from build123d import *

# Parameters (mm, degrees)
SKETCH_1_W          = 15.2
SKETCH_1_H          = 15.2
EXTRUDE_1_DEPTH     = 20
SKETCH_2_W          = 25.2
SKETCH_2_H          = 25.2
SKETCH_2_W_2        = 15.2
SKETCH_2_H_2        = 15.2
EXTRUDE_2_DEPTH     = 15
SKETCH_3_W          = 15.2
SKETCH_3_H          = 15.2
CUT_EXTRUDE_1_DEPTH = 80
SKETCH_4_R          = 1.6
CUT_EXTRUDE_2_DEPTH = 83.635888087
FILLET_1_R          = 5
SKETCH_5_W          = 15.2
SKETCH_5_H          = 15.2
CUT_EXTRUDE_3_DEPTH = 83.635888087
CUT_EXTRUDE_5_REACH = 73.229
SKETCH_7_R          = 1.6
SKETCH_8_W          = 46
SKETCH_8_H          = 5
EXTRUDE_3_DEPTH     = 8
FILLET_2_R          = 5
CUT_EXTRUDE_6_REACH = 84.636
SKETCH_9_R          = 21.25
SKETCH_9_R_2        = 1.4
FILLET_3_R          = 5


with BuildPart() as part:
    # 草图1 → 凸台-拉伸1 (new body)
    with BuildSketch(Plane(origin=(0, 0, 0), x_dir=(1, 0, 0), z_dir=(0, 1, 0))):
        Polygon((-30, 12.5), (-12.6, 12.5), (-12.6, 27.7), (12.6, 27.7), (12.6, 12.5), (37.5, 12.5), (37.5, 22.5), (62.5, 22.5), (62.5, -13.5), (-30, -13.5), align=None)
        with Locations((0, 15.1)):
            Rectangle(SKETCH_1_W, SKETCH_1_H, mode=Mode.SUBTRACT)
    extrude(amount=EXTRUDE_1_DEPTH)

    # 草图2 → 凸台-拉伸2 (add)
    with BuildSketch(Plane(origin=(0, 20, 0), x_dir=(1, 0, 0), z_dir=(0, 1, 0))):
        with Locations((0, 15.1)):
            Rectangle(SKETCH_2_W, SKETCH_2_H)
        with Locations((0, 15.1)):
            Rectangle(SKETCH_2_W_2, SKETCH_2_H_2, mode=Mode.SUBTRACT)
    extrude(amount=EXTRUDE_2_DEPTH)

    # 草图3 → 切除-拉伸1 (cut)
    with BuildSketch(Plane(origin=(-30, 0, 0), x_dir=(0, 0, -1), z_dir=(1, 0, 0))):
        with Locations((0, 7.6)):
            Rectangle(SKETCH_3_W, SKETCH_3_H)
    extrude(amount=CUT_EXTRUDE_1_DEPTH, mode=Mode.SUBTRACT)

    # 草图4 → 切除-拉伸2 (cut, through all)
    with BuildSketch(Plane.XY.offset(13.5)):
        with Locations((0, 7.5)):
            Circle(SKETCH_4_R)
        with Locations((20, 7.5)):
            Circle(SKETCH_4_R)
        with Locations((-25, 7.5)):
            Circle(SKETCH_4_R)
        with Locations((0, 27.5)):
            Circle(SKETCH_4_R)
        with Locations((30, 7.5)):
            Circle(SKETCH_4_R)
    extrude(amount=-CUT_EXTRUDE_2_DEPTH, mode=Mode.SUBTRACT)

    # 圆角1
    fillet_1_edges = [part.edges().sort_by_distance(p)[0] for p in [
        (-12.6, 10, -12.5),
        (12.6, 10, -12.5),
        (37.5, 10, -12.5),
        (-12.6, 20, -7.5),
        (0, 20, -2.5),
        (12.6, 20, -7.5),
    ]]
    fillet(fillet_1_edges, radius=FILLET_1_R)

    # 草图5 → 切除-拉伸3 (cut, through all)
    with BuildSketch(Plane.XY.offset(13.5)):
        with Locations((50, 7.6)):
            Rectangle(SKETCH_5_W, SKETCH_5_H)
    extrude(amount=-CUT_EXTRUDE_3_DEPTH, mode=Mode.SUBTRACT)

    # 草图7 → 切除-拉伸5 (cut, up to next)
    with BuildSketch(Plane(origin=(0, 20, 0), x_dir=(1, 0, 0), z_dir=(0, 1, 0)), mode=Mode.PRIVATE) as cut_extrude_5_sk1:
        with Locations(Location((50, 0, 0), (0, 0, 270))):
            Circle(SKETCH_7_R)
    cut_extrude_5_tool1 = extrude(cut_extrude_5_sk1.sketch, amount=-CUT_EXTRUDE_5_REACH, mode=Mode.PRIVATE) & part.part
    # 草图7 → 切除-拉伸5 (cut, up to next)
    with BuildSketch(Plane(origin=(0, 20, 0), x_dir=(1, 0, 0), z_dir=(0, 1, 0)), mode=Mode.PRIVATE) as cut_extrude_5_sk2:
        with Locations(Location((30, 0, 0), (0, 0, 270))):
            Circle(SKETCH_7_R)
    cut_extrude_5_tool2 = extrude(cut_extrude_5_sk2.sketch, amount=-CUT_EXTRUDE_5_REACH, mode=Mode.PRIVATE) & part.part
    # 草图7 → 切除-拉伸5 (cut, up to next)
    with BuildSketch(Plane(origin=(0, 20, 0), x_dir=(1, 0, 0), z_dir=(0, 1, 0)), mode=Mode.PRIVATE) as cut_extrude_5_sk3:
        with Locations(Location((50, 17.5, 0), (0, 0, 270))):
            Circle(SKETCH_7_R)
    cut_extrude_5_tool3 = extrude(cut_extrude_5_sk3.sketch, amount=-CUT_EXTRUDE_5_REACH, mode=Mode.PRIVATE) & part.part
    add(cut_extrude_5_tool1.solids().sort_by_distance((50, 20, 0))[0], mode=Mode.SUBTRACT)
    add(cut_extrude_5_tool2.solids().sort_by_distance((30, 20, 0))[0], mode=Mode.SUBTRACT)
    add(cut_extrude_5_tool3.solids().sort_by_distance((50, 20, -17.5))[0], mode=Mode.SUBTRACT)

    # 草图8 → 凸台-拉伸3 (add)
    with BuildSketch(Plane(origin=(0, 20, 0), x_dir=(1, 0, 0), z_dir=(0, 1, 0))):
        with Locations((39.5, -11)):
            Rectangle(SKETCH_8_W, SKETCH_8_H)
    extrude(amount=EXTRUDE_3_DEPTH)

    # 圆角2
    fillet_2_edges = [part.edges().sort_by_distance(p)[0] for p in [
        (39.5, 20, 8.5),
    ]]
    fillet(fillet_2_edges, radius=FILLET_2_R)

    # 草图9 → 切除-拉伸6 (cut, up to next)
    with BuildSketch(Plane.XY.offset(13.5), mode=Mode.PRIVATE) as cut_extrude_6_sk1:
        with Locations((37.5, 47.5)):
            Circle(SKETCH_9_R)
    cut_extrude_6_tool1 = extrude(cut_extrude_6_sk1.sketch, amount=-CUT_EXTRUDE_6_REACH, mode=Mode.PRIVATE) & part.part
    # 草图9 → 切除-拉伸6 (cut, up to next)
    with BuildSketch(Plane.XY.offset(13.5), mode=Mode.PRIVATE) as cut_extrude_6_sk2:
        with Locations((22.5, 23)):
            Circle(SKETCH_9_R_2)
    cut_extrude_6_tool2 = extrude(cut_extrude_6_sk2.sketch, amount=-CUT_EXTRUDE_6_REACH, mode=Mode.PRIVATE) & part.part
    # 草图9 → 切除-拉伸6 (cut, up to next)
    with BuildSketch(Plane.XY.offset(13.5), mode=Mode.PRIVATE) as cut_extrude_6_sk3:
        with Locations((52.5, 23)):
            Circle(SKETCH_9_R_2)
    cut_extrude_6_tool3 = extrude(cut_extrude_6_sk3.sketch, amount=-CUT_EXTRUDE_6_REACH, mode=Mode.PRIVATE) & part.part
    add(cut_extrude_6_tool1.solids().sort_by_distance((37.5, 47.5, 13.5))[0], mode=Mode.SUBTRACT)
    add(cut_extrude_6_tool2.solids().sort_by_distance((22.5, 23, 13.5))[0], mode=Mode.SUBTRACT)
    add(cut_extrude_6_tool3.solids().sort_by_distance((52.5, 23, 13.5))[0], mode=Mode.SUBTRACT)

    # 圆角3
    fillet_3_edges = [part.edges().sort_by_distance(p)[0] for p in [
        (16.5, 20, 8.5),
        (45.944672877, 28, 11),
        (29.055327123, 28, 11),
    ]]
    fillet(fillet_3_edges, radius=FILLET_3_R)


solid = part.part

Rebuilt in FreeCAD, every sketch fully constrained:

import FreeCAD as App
import Part
import Sketcher


def edges_at(feature, points):
    """Names of the edges that pass closest to the given points."""
    edges = feature.Shape.Edges
    near = lambda p: min(range(len(edges)), key=lambda i: edges[i].distToShape(Part.Vertex(*p))[0])
    return sorted({f"Edge{near(p) + 1}" for p in points})

doc = App.newDocument("Part")
body = doc.addObject("PartDesign::Body", "Body")

# Sketch on XZ plane
sketch1 = body.newObject("Sketcher::SketchObject", "Sketch")
sketch1.AttachmentSupport = (doc.getObject("XZ_Plane"), [""])
sketch1.MapMode = "FlatFace"
sketch1.addGeometry([
    Part.LineSegment(App.Vector(-12.6, -12.5, 0), App.Vector(-30, -12.5, 0)),  # 0
    Part.LineSegment(App.Vector(-30, -12.5, 0), App.Vector(-30, 13.5, 0)),  # 1
    Part.LineSegment(App.Vector(-30, 13.5, 0), App.Vector(62.5, 13.5, 0)),  # 2
    Part.LineSegment(App.Vector(62.5, 13.5, 0), App.Vector(62.5, -22.5, 0)),  # 3
    Part.LineSegment(App.Vector(62.5, -22.5, 0), App.Vector(37.5, -22.5, 0)),  # 4
    Part.LineSegment(App.Vector(37.5, -22.5, 0), App.Vector(37.5, -12.5, 0)),  # 5
    Part.LineSegment(App.Vector(37.5, -12.5, 0), App.Vector(12.6, -12.5, 0)),  # 6
    Part.LineSegment(App.Vector(12.6, -12.5, 0), App.Vector(12.6, -27.7, 0)),  # 7
    Part.LineSegment(App.Vector(12.6, -27.7, 0), App.Vector(-12.6, -27.7, 0)),  # 8
    Part.LineSegment(App.Vector(-12.6, -27.7, 0), App.Vector(-12.6, -12.5, 0)),  # 9
    Part.LineSegment(App.Vector(-7.6, -7.5, 0), App.Vector(-7.6, -22.7, 0)),  # 10
    Part.LineSegment(App.Vector(-7.6, -22.7, 0), App.Vector(7.6, -22.7, 0)),  # 11
    Part.LineSegment(App.Vector(7.6, -22.7, 0), App.Vector(7.6, -7.5, 0)),  # 12
    Part.LineSegment(App.Vector(7.6, -7.5, 0), App.Vector(-7.6, -7.5, 0)),  # 13
], False)
sketch1.addConstraint([
    Sketcher.Constraint("Coincident", 0, 2, 1, 1),
    Sketcher.Constraint("Coincident", 1, 2, 2, 1),
    Sketcher.Constraint("Coincident", 2, 2, 3, 1),
    Sketcher.Constraint("Coincident", 3, 2, 4, 1),
    Sketcher.Constraint("Coincident", 4, 2, 5, 1),
    Sketcher.Constraint("Coincident", 5, 2, 6, 1),
    Sketcher.Constraint("Coincident", 6, 2, 7, 1),
    Sketcher.Constraint("Coincident", 7, 2, 8, 1),
    Sketcher.Constraint("Coincident", 8, 2, 9, 1),
    Sketcher.Constraint("Coincident", 9, 2, 0, 1),
    Sketcher.Constraint("Coincident", 10, 2, 11, 1),
    Sketcher.Constraint("Coincident", 11, 2, 12, 1),
    Sketcher.Constraint("Coincident", 12, 2, 13, 1),
    Sketcher.Constraint("Coincident", 13, 2, 10, 1),
    Sketcher.Constraint("Horizontal", 0),
    Sketcher.Constraint("Vertical", 1),
    Sketcher.Constraint("Horizontal", 2),
    Sketcher.Constraint("Vertical", 3),
    Sketcher.Constraint("Horizontal", 4),
    Sketcher.Constraint("Vertical", 5),
    Sketcher.Constraint("Horizontal", 6),
    Sketcher.Constraint("Vertical", 7),
    Sketcher.Constraint("Horizontal", 8),
    Sketcher.Constraint("Vertical", 9),
    Sketcher.Constraint("Vertical", 10),
    Sketcher.Constraint("Horizontal", 11),
    Sketcher.Constraint("Vertical", 12),
    Sketcher.Constraint("Horizontal", 13),
    Sketcher.Constraint("Symmetric", 6, 2, 9, 2, -2),
    Sketcher.Constraint("Equal", 13, 7),
    Sketcher.Constraint("Equal", 9, 10),
    Sketcher.Constraint("DistanceX", 4, 2, 4, 1, 25.0),
    Sketcher.Constraint("DistanceY", 1, 1, 1, 2, 26.0),
    Sketcher.Constraint("DistanceY", 3, 2, 3, 1, 36.0),
    Sketcher.Constraint("DistanceX", 0, 2, 0, 1, 17.4),
    Sketcher.Constraint("DistanceX", 2, 1, 2, 2, 92.5),
    Sketcher.Constraint("DistanceX", 6, 2, 6, 1, 24.9),
    Sketcher.Constraint("DistanceX", 11, 1, 11, 2, 15.2),
    Sketcher.Constraint("DistanceX", 8, 2, 10, 2, 5.0),
    Sketcher.Constraint("DistanceY", 8, 2, 10, 2, 5.0),
    Sketcher.Constraint("DistanceY", 0, 2, -1, 1, 12.5),
])
pad1 = body.newObject("PartDesign::Pad", "Pad")
pad1.Profile = sketch1
pad1.Length = 20
pad1.Reversed = True

# Sketch on XZ plane
sketch2 = body.newObject("Sketcher::SketchObject", "Sketch001")
sketch2.AttachmentSupport = (doc.getObject("XZ_Plane"), [""])
sketch2.MapMode = "FlatFace"
sketch2.AttachmentOffset = App.Placement(App.Vector(0, 0, -20), App.Rotation())
sketch2.addGeometry([
    Part.LineSegment(App.Vector(-12.6, -27.7, 0), App.Vector(-12.6, -2.5, 0)),  # 0
    Part.LineSegment(App.Vector(-12.6, -2.5, 0), App.Vector(12.6, -2.5, 0)),  # 1
    Part.LineSegment(App.Vector(12.6, -2.5, 0), App.Vector(12.6, -27.7, 0)),  # 2
    Part.LineSegment(App.Vector(12.6, -27.7, 0), App.Vector(-12.6, -27.7, 0)),  # 3
    Part.LineSegment(App.Vector(7.6, -7.5, 0), App.Vector(-7.6, -7.5, 0)),  # 4
    Part.LineSegment(App.Vector(-7.6, -7.5, 0), App.Vector(-7.6, -22.7, 0)),  # 5
    Part.LineSegment(App.Vector(-7.6, -22.7, 0), App.Vector(7.6, -22.7, 0)),  # 6
    Part.LineSegment(App.Vector(7.6, -22.7, 0), App.Vector(7.6, -7.5, 0)),  # 7
], False)
sketch2.addConstraint([
    Sketcher.Constraint("Coincident", 0, 2, 1, 1),
    Sketcher.Constraint("Coincident", 1, 2, 2, 1),
    Sketcher.Constraint("Coincident", 2, 2, 3, 1),
    Sketcher.Constraint("Coincident", 3, 2, 0, 1),
    Sketcher.Constraint("Coincident", 4, 2, 5, 1),
    Sketcher.Constraint("Coincident", 5, 2, 6, 1),
    Sketcher.Constraint("Coincident", 6, 2, 7, 1),
    Sketcher.Constraint("Coincident", 7, 2, 4, 1),
    Sketcher.Constraint("Vertical", 0),
    Sketcher.Constraint("Horizontal", 1),
    Sketcher.Constraint("Vertical", 2),
    Sketcher.Constraint("Horizontal", 3),
    Sketcher.Constraint("Horizontal", 4),
    Sketcher.Constraint("Vertical", 5),
    Sketcher.Constraint("Horizontal", 6),
    Sketcher.Constraint("Vertical", 7),
    Sketcher.Constraint("Equal", 3, 0),
    Sketcher.Constraint("Equal", 6, 5),
    Sketcher.Constraint("DistanceX", 1, 1, 1, 2, 25.2),
    Sketcher.Constraint("DistanceX", 4, 2, 4, 1, 15.2),
    Sketcher.Constraint("DistanceX", 0, 2, 4, 2, 5.0),
    Sketcher.Constraint("DistanceY", 4, 2, 0, 2, 5.0),
    Sketcher.Constraint("DistanceX", 0, 2, -1, 1, 12.6),
    Sketcher.Constraint("DistanceY", 0, 2, -1, 1, 2.5),
])
pad2 = body.newObject("PartDesign::Pad", "Pad001")
pad2.Profile = sketch2
pad2.Length = 15
pad2.Reversed = True

# Sketch on YZ plane
sketch3 = body.newObject("Sketcher::SketchObject", "Sketch002")
sketch3.AttachmentSupport = (doc.getObject("YZ_Plane"), [""])
sketch3.MapMode = "FlatFace"
sketch3.AttachmentOffset = App.Placement(App.Vector(0, 0, -30), App.Rotation())
sketch3.addGeometry([
    Part.LineSegment(App.Vector(15.2, 7.6, 0), App.Vector(0, 7.6, 0)),
    Part.LineSegment(App.Vector(0, 7.6, 0), App.Vector(0, -7.6, 0)),
    Part.LineSegment(App.Vector(0, -7.6, 0), App.Vector(15.2, -7.6, 0)),
    Part.LineSegment(App.Vector(15.2, -7.6, 0), App.Vector(15.2, 7.6, 0)),
], False)
sketch3.addConstraint([
    Sketcher.Constraint("Coincident", 0, 2, 1, 1),
    Sketcher.Constraint("Coincident", 1, 2, 2, 1),
    Sketcher.Constraint("Coincident", 2, 2, 3, 1),
    Sketcher.Constraint("Coincident", 3, 2, 0, 1),
    Sketcher.Constraint("Horizontal", 0),
    Sketcher.Constraint("Vertical", 1),
    Sketcher.Constraint("Horizontal", 2),
    Sketcher.Constraint("Vertical", 3),
    Sketcher.Constraint("Symmetric", 0, 2, 1, 2, -1, 1),
    Sketcher.Constraint("Equal", 2, 1),
    Sketcher.Constraint("DistanceX", 0, 2, 0, 1, 15.2),
])
pocket1 = body.newObject("PartDesign::Pocket", "Pocket")
pocket1.Profile = sketch3
pocket1.Length = 80
pocket1.Reversed = True

# Sketch on XY plane
sketch4 = body.newObject("Sketcher::SketchObject", "Sketch003")
sketch4.AttachmentSupport = (doc.getObject("XY_Plane"), [""])
sketch4.MapMode = "FlatFace"
sketch4.AttachmentOffset = App.Placement(App.Vector(0, 0, 13.5), App.Rotation())
sketch4.addGeometry([
    Part.Circle(App.Vector(0, 7.5, 0), App.Vector(0, 0, 1), 1.6),  # 0
    Part.Circle(App.Vector(20, 7.5, 0), App.Vector(0, 0, 1), 1.6),  # 1
    Part.Circle(App.Vector(-25, 7.5, 0), App.Vector(0, 0, 1), 1.6),  # 2
    Part.Circle(App.Vector(0, 27.5, 0), App.Vector(0, 0, 1), 1.6),  # 3
    Part.Circle(App.Vector(30, 7.5, 0), App.Vector(0, 0, 1), 1.6),  # 4
], False)
sketch4.addConstraint([
    Sketcher.Constraint("Equal", 0, 1),
    Sketcher.Constraint("Equal", 1, 2),
    Sketcher.Constraint("Equal", 2, 3),
    Sketcher.Constraint("Equal", 3, 4),
    Sketcher.Constraint("PointOnObject", 0, 3, -2),
    Sketcher.Constraint("PointOnObject", 3, 3, -2),
    Sketcher.Constraint("Horizontal", 0, 3, 1, 3),
    Sketcher.Constraint("Horizontal", 1, 3, 2, 3),
    Sketcher.Constraint("Horizontal", 2, 3, 4, 3),
    Sketcher.Constraint("Diameter", 0, 3.2),
    Sketcher.Constraint("DistanceX", -1, 1, 1, 3, 20.0),
    Sketcher.Constraint("DistanceX", 2, 3, -1, 1, 25.0),
    Sketcher.Constraint("DistanceX", -1, 1, 4, 3, 30.0),
    Sketcher.Constraint("DistanceY", 0, 3, 3, 3, 20.0),
    Sketcher.Constraint("DistanceY", -1, 1, 0, 3, 7.5),
])
pocket2 = body.newObject("PartDesign::Pocket", "Pocket001")
pocket2.Profile = sketch4
pocket2.Type = "ThroughAll"
doc.recompute()

fillet = body.newObject("PartDesign::Fillet", "Fillet")
fillet.Base = (pocket2, edges_at(pocket2, [
    (-12.6, 10, -12.5),
    (12.6, 10, -12.5),
    (37.5, 10, -12.5),
    (-12.6, 20, -7.5),
    (0, 20, -2.5),
    (12.6, 20, -7.5),
]))
fillet.Radius = 5

# Sketch on XY plane
sketch5 = body.newObject("Sketcher::SketchObject", "Sketch004")
sketch5.AttachmentSupport = (doc.getObject("XY_Plane"), [""])
sketch5.MapMode = "FlatFace"
sketch5.AttachmentOffset = App.Placement(App.Vector(0, 0, 13.5), App.Rotation())
sketch5.addGeometry([
    Part.LineSegment(App.Vector(42.4, 15.2, 0), App.Vector(42.4, 0, 0)),
    Part.LineSegment(App.Vector(42.4, 0, 0), App.Vector(57.6, 0, 0)),
    Part.LineSegment(App.Vector(57.6, 0, 0), App.Vector(57.6, 15.2, 0)),
    Part.LineSegment(App.Vector(57.6, 15.2, 0), App.Vector(42.4, 15.2, 0)),
], False)
sketch5.addConstraint([
    Sketcher.Constraint("Coincident", 0, 2, 1, 1),
    Sketcher.Constraint("Coincident", 1, 2, 2, 1),
    Sketcher.Constraint("Coincident", 2, 2, 3, 1),
    Sketcher.Constraint("Coincident", 3, 2, 0, 1),
    Sketcher.Constraint("Vertical", 0),
    Sketcher.Constraint("Horizontal", 1),
    Sketcher.Constraint("Vertical", 2),
    Sketcher.Constraint("Horizontal", 3),
    Sketcher.Constraint("PointOnObject", 0, 2, -1),
    Sketcher.Constraint("Equal", 3, 0),
    Sketcher.Constraint("DistanceX", 1, 1, 1, 2, 15.2),
    Sketcher.Constraint("DistanceX", -1, 1, 0, 2, 42.4),
])
pocket3 = body.newObject("PartDesign::Pocket", "Pocket002")
pocket3.Profile = sketch5
pocket3.Type = "ThroughAll"

# Sketch on XZ plane
sketch6 = body.newObject("Sketcher::SketchObject", "Sketch005")
sketch6.AttachmentSupport = (doc.getObject("XZ_Plane"), [""])
sketch6.MapMode = "FlatFace"
sketch6.AttachmentOffset = App.Placement(App.Vector(0, 0, -20), App.Rotation())
sketch6.addGeometry(Part.Circle(App.Vector(50, 0, 0), App.Vector(0, 0, 1), 1.6), False)
sketch6.addConstraint([
    Sketcher.Constraint("PointOnObject", 0, 3, -1),
    Sketcher.Constraint("Diameter", 0, 3.2),
    Sketcher.Constraint("DistanceX", -1, 1, 0, 3, 50.0),
])
pocket4 = body.newObject("PartDesign::Pocket", "Pocket003")
pocket4.Profile = sketch6
pocket4.Type = "UpToFirst"
pocket4.Reversed = True

# Sketch on XZ plane
sketch7 = body.newObject("Sketcher::SketchObject", "Sketch006")
sketch7.AttachmentSupport = (doc.getObject("XZ_Plane"), [""])
sketch7.MapMode = "FlatFace"
sketch7.AttachmentOffset = App.Placement(App.Vector(0, 0, -20), App.Rotation())
sketch7.addGeometry(Part.Circle(App.Vector(30, 0, 0), App.Vector(0, 0, 1), 1.6), False)
sketch7.addConstraint([
    Sketcher.Constraint("PointOnObject", 0, 3, -1),
    Sketcher.Constraint("Diameter", 0, 3.2),
    Sketcher.Constraint("DistanceX", -1, 1, 0, 3, 30.0),
])
pocket5 = body.newObject("PartDesign::Pocket", "Pocket004")
pocket5.Profile = sketch7
pocket5.Type = "UpToFirst"
pocket5.Reversed = True

# Sketch on XZ plane
sketch8 = body.newObject("Sketcher::SketchObject", "Sketch007")
sketch8.AttachmentSupport = (doc.getObject("XZ_Plane"), [""])
sketch8.MapMode = "FlatFace"
sketch8.AttachmentOffset = App.Placement(App.Vector(0, 0, -20), App.Rotation())
sketch8.addGeometry(Part.Circle(App.Vector(50, -17.5, 0), App.Vector(0, 0, 1), 1.6), False)
sketch8.addConstraint([
    Sketcher.Constraint("Diameter", 0, 3.2),
    Sketcher.Constraint("DistanceX", -1, 1, 0, 3, 50.0),
    Sketcher.Constraint("DistanceY", 0, 3, -1, 1, 17.5),
])
pocket6 = body.newObject("PartDesign::Pocket", "Pocket005")
pocket6.Profile = sketch8
pocket6.Type = "UpToFirst"
pocket6.Reversed = True

# Sketch on XZ plane
sketch9 = body.newObject("Sketcher::SketchObject", "Sketch008")
sketch9.AttachmentSupport = (doc.getObject("XZ_Plane"), [""])
sketch9.MapMode = "FlatFace"
sketch9.AttachmentOffset = App.Placement(App.Vector(0, 0, -20), App.Rotation())
sketch9.addGeometry([
    Part.LineSegment(App.Vector(16.5, 8.5, 0), App.Vector(16.5, 13.5, 0)),
    Part.LineSegment(App.Vector(16.5, 13.5, 0), App.Vector(62.5, 13.5, 0)),
    Part.LineSegment(App.Vector(62.5, 13.5, 0), App.Vector(62.5, 8.5, 0)),
    Part.LineSegment(App.Vector(62.5, 8.5, 0), App.Vector(16.5, 8.5, 0)),
], False)
sketch9.addConstraint([
    Sketcher.Constraint("Coincident", 0, 2, 1, 1),
    Sketcher.Constraint("Coincident", 1, 2, 2, 1),
    Sketcher.Constraint("Coincident", 2, 2, 3, 1),
    Sketcher.Constraint("Coincident", 3, 2, 0, 1),
    Sketcher.Constraint("Vertical", 0),
    Sketcher.Constraint("Horizontal", 1),
    Sketcher.Constraint("Vertical", 2),
    Sketcher.Constraint("Horizontal", 3),
    Sketcher.Constraint("DistanceX", 1, 1, 1, 2, 46.0),
    Sketcher.Constraint("DistanceY", 0, 1, 0, 2, 5.0),
    Sketcher.Constraint("DistanceX", -1, 1, 0, 2, 16.5),
    Sketcher.Constraint("DistanceY", -1, 1, 0, 2, 13.5),
])
pad3 = body.newObject("PartDesign::Pad", "Pad002")
pad3.Profile = sketch9
pad3.Length = 8
pad3.Reversed = True
doc.recompute()

fillet2 = body.newObject("PartDesign::Fillet", "Fillet001")
fillet2.Base = (pad3, edges_at(pad3, [(39.5, 20, 8.5)]))
fillet2.Radius = 5

# Sketch on XY plane
sketch10 = body.newObject("Sketcher::SketchObject", "Sketch009")
sketch10.AttachmentSupport = (doc.getObject("XY_Plane"), [""])
sketch10.MapMode = "FlatFace"
sketch10.AttachmentOffset = App.Placement(App.Vector(0, 0, 13.5), App.Rotation())
sketch10.addGeometry(Part.Circle(App.Vector(37.5, 47.5, 0), App.Vector(0, 0, 1), 21.25), False)
sketch10.addConstraint([
    Sketcher.Constraint("Diameter", 0, 42.5),
    Sketcher.Constraint("DistanceX", -1, 1, 0, 3, 37.5),
    Sketcher.Constraint("DistanceY", -1, 1, 0, 3, 47.5),
])
pocket7 = body.newObject("PartDesign::Pocket", "Pocket006")
pocket7.Profile = sketch10
pocket7.Length = 5

# Sketch on XY plane
sketch11 = body.newObject("Sketcher::SketchObject", "Sketch010")
sketch11.AttachmentSupport = (doc.getObject("XY_Plane"), [""])
sketch11.MapMode = "FlatFace"
sketch11.AttachmentOffset = App.Placement(App.Vector(0, 0, 13.5), App.Rotation())
sketch11.addGeometry(Part.Circle(App.Vector(22.5, 23, 0), App.Vector(0, 0, 1), 1.4), False)
sketch11.addConstraint([
    Sketcher.Constraint("Diameter", 0, 2.8),
    Sketcher.Constraint("DistanceY", -1, 1, 0, 3, 23.0),
    Sketcher.Constraint("DistanceX", -1, 1, 0, 3, 22.5),
])
pocket8 = body.newObject("PartDesign::Pocket", "Pocket007")
pocket8.Profile = sketch11
pocket8.Type = "UpToFirst"

# Sketch on XY plane
sketch12 = body.newObject("Sketcher::SketchObject", "Sketch011")
sketch12.AttachmentSupport = (doc.getObject("XY_Plane"), [""])
sketch12.MapMode = "FlatFace"
sketch12.AttachmentOffset = App.Placement(App.Vector(0, 0, 13.5), App.Rotation())
sketch12.addGeometry(Part.Circle(App.Vector(52.5, 23, 0), App.Vector(0, 0, 1), 1.4), False)
sketch12.addConstraint([
    Sketcher.Constraint("Diameter", 0, 2.8),
    Sketcher.Constraint("DistanceY", -1, 1, 0, 3, 23.0),
    Sketcher.Constraint("DistanceX", -1, 1, 0, 3, 52.5),
])
pocket9 = body.newObject("PartDesign::Pocket", "Pocket008")
pocket9.Profile = sketch12
pocket9.Type = "UpToFirst"
doc.recompute()

fillet3 = body.newObject("PartDesign::Fillet", "Fillet002")
fillet3.Base = (pocket9, edges_at(pocket9, [(16.5, 20, 8.5), (45.945, 28, 11), (29.055, 28, 11)]))
fillet3.Radius = 5

doc.recompute()
